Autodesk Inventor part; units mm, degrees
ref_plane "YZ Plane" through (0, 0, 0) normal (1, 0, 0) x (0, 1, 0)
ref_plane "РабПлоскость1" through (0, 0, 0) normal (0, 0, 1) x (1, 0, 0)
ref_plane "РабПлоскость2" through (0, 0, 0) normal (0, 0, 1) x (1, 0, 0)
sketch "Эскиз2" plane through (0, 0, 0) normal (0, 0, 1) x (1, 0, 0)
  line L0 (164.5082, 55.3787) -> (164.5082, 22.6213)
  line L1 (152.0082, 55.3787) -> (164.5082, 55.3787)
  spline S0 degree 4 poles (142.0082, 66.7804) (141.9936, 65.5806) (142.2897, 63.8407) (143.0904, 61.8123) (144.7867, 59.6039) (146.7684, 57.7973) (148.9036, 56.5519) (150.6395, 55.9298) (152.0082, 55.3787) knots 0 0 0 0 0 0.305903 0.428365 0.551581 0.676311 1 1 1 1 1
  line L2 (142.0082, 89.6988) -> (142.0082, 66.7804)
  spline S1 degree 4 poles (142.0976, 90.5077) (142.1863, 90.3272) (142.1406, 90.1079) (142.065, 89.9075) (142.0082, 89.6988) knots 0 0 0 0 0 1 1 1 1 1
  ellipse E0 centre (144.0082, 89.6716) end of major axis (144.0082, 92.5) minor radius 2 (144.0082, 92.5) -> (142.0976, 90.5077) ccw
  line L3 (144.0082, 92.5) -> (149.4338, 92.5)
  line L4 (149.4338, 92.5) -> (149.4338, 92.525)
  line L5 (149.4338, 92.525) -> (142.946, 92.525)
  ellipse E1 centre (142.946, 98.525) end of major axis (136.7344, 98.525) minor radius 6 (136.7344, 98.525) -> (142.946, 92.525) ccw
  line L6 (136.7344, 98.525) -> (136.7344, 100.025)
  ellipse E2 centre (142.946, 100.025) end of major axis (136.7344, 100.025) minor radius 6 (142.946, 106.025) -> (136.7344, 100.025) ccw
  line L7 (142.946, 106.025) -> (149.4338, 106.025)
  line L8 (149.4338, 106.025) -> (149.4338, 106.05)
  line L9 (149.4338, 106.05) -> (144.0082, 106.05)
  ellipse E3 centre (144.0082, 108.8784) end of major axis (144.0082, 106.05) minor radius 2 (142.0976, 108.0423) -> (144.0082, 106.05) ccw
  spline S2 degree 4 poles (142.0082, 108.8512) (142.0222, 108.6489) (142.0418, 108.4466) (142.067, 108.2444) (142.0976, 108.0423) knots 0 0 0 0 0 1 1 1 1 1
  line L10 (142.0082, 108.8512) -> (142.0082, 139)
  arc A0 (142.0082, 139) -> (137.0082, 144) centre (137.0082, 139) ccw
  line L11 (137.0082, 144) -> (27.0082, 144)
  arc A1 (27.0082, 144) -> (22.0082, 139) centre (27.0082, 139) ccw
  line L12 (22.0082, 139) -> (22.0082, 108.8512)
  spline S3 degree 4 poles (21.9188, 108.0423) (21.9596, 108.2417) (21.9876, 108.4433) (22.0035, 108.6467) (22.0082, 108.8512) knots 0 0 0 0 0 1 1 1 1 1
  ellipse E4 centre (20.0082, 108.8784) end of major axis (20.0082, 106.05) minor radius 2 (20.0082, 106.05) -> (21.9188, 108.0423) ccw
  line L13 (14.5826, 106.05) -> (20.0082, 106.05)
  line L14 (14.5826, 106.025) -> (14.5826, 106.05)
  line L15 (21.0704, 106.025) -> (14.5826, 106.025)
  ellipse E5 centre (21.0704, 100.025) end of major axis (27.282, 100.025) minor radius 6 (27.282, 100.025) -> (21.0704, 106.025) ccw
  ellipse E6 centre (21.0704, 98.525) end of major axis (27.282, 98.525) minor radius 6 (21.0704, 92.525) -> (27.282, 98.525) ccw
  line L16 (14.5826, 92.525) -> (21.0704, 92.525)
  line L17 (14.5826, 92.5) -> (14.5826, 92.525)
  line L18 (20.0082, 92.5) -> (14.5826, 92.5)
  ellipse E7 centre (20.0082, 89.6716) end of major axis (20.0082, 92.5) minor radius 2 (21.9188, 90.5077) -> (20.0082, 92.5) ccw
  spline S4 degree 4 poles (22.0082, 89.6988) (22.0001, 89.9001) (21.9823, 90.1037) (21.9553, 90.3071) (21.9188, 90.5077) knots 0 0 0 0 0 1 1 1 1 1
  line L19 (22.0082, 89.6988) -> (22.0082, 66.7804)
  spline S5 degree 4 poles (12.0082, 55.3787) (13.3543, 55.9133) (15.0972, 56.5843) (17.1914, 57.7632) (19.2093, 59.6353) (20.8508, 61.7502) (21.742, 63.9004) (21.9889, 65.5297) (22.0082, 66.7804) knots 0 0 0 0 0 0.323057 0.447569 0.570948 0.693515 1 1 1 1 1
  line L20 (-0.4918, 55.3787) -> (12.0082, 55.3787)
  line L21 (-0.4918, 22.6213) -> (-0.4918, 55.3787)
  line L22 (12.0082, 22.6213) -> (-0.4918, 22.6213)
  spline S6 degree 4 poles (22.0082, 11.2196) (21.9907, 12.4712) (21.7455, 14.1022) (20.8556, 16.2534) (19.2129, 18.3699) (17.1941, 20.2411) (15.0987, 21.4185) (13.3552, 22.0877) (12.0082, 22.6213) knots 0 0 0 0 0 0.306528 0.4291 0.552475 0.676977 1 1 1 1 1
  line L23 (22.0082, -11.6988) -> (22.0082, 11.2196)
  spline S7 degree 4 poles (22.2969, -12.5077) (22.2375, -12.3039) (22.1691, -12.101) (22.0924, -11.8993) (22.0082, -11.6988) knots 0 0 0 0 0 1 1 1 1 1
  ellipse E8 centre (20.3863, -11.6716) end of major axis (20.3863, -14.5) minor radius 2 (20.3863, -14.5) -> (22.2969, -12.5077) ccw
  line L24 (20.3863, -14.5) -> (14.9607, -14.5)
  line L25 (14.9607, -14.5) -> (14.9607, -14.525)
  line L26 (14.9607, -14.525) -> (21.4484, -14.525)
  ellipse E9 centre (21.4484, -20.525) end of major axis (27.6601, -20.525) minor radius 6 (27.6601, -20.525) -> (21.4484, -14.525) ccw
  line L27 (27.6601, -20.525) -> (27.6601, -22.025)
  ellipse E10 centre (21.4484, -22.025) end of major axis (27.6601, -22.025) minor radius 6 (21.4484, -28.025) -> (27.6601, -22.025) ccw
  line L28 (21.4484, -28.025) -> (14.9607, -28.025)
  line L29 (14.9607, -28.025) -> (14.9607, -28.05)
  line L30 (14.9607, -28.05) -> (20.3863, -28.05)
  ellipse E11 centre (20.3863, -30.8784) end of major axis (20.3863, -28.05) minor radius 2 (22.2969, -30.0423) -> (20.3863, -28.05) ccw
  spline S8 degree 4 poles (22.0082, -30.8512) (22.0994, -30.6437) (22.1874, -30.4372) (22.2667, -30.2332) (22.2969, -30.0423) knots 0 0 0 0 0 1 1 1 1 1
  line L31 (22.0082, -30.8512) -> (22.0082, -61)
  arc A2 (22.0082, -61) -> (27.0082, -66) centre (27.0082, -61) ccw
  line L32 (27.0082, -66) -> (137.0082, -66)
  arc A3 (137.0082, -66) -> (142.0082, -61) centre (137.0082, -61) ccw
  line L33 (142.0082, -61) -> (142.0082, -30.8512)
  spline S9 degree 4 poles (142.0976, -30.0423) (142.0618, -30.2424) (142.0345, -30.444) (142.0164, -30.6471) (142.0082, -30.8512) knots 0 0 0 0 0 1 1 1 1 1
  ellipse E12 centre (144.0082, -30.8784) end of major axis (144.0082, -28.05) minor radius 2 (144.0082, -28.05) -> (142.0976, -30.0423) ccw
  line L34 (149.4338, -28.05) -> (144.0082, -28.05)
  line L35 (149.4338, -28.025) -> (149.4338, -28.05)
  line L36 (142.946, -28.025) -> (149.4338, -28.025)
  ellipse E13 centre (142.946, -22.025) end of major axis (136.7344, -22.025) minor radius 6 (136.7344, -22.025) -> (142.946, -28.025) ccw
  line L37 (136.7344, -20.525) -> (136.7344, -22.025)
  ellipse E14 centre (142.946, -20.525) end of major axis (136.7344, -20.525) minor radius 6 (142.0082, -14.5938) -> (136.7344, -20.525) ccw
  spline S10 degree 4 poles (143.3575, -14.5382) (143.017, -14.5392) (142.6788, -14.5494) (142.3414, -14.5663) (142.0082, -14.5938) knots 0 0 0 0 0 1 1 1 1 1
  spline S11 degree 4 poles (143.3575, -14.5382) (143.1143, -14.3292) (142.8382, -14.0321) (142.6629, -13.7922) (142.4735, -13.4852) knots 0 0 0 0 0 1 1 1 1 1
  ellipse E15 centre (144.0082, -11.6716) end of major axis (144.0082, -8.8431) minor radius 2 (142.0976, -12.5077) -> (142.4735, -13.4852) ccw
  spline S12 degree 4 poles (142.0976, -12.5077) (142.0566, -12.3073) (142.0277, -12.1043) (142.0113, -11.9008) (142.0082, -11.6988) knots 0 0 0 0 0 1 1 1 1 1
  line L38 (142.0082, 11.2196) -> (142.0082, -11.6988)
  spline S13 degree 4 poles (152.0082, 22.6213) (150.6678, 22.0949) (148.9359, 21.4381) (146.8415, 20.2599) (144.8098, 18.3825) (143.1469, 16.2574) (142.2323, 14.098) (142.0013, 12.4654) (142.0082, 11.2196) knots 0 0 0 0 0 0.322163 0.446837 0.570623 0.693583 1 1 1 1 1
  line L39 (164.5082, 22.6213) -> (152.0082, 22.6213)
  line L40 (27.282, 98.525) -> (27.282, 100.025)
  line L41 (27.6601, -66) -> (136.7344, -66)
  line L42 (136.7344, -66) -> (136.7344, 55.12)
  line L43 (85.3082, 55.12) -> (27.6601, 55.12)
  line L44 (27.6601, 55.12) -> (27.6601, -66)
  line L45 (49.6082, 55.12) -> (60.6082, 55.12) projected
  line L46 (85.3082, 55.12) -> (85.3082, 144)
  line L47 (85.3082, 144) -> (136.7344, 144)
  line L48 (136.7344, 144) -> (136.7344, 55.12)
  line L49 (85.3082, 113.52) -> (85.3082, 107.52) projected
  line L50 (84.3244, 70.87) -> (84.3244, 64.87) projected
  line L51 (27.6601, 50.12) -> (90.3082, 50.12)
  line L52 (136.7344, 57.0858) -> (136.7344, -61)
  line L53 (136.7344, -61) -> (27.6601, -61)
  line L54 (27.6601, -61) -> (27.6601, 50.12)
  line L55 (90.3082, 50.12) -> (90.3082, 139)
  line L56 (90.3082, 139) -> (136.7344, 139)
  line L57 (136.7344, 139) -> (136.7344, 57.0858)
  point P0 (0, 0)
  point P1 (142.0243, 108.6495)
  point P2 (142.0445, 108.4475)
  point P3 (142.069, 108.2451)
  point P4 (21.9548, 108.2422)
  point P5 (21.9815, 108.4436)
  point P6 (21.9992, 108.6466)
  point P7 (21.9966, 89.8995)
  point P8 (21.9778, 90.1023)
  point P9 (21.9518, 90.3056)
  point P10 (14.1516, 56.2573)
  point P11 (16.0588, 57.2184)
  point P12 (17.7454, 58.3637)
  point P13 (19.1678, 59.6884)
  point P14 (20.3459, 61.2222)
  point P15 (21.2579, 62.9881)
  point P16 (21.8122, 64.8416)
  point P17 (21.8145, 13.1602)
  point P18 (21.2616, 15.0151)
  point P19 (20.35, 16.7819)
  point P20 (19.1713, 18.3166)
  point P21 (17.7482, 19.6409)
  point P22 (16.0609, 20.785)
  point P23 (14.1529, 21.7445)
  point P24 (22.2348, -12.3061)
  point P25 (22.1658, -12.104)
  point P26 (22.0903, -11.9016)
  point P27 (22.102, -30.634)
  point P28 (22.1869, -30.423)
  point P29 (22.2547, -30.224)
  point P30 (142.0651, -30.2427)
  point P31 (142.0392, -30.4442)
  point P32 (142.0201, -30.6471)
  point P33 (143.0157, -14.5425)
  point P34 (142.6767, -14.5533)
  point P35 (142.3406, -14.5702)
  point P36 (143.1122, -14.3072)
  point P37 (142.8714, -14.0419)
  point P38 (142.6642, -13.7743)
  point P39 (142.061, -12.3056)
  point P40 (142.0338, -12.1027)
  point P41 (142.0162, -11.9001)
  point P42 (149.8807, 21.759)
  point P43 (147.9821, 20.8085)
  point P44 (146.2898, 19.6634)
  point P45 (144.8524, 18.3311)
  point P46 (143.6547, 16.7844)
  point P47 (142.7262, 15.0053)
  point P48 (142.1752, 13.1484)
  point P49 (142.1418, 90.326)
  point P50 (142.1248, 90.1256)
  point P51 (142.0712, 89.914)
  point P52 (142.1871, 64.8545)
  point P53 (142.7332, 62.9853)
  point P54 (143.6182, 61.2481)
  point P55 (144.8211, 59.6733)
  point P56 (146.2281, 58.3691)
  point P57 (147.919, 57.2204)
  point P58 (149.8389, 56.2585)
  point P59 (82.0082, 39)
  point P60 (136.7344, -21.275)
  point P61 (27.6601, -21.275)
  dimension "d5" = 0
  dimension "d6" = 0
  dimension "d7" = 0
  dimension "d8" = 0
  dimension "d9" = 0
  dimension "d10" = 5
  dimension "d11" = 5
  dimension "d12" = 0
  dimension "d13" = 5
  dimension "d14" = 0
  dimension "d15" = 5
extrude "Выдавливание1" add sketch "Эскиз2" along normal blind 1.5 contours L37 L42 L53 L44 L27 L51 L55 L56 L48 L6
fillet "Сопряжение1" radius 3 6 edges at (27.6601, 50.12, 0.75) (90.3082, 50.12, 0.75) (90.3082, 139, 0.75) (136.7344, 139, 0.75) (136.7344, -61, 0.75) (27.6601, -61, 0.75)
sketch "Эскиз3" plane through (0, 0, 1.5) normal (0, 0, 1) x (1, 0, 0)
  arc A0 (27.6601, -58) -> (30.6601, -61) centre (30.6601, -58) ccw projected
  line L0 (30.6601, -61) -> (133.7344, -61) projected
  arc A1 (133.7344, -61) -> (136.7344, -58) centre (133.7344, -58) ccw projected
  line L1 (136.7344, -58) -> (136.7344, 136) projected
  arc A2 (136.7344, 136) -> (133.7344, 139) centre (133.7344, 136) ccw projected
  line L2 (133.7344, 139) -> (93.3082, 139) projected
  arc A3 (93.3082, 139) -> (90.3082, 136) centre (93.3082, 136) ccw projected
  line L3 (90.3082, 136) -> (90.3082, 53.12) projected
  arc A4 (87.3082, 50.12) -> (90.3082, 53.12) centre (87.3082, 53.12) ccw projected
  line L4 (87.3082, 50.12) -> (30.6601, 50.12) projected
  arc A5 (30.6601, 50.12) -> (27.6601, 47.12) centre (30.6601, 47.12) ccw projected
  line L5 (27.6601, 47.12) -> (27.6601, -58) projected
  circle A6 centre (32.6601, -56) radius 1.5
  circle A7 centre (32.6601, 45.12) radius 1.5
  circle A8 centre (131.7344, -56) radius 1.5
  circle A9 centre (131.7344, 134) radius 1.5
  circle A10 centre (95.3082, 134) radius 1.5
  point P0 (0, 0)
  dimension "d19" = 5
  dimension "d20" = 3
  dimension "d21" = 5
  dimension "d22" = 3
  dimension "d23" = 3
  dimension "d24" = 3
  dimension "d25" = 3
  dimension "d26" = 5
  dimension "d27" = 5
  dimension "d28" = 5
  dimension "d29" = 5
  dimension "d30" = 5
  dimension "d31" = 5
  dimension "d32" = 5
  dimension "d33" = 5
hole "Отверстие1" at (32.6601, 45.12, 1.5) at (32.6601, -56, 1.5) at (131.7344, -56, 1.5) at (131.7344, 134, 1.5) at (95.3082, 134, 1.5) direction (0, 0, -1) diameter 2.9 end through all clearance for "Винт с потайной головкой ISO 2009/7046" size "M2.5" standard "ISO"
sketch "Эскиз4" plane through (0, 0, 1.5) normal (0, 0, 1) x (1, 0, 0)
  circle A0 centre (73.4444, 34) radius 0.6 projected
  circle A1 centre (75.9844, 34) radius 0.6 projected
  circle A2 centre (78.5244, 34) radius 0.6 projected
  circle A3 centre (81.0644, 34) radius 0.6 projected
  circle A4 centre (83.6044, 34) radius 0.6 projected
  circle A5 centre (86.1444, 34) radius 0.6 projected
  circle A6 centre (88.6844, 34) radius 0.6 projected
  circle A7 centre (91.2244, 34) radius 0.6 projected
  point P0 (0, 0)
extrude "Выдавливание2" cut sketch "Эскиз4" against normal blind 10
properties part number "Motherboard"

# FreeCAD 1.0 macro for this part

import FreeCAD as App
import Part
import Sketcher


def edges_at(feature, points):
    """Names of the edges that pass closest to the given points."""
    edges = feature.Shape.Edges
    near = lambda p: min(range(len(edges)), key=lambda i: edges[i].distToShape(Part.Vertex(*p))[0])
    return sorted({f"Edge{near(p) + 1}" for p in points})

doc = App.newDocument("Part")
params = doc.addObject("Spreadsheet::Sheet", "Params")
for row, (alias, value) in enumerate([
    ("sketch1_height", "200 mm"),
    ("sketch1_height2", "88.88 mm"),
    ("pad1_length", "1.5 mm"),
    ("fillet_radius", "3 mm"),
    ("sketch2_diameter", "2.9 mm"),
    ("hole_diameter", "2.9 mm"),
    ("sketch3_diameter", "1.2 mm"),
    ("pocket1_length", "10 mm"),
], start=1):
    params.set(f"A{row}", alias)
    params.set(f"B{row}", "=" + value)
    params.setAlias(f"B{row}", alias)

body = doc.addObject("PartDesign::Body", "Body")

sketch1 = body.newObject("Sketcher::SketchObject", "Sketch")
sketch1.AttachmentSupport = (doc.getObject("XY_Plane"), [""])
sketch1.MapMode = "FlatFace"
sketch1.addGeometry([
    Part.LineSegment(App.Vector(137, -61, 0), App.Vector(137, 139, 0)),
    Part.LineSegment(App.Vector(137, 139, 0), App.Vector(90, 139, 0)),
    Part.LineSegment(App.Vector(90, 139, 0), App.Vector(90, 50, 0)),
    Part.LineSegment(App.Vector(90, 50, 0), App.Vector(28, 50, 0)),
    Part.LineSegment(App.Vector(28, 50, 0), App.Vector(28, -61, 0)),
    Part.LineSegment(App.Vector(28, -61, 0), App.Vector(137, -61, 0)),
], False)
sketch1.addConstraint([
    Sketcher.Constraint("Coincident", 0, 2, 1, 1),
    Sketcher.Constraint("Coincident", 1, 2, 2, 1),
    Sketcher.Constraint("Coincident", 2, 2, 3, 1),
    Sketcher.Constraint("Coincident", 3, 2, 4, 1),
    Sketcher.Constraint("Coincident", 4, 2, 5, 1),
    Sketcher.Constraint("Coincident", 5, 2, 0, 1),
    Sketcher.Constraint("Vertical", 0),
    Sketcher.Constraint("Horizontal", 1),
    Sketcher.Constraint("Vertical", 2),
    Sketcher.Constraint("Horizontal", 3),
    Sketcher.Constraint("Vertical", 4),
    Sketcher.Constraint("Horizontal", 5),
    Sketcher.Constraint("DistanceY", 0, 1, 0, 2, 200.0),
    Sketcher.Constraint("DistanceY", -1, 1, 0, 2, 139.0),
    Sketcher.Constraint("DistanceY", 2, 2, 2, 1, 88.88),
    Sketcher.Constraint("DistanceX", 3, 2, 3, 1, 62.648),
    Sketcher.Constraint("DistanceX", -1, 1, 3, 2, 27.66),
    Sketcher.Constraint("DistanceX", 1, 2, 1, 1, 46.4262),
])
sketch1.setExpression("Constraints[12]", "Params.sketch1_height")
sketch1.setExpression("Constraints[14]", "Params.sketch1_height2")
pad1 = body.newObject("PartDesign::Pad", "Pad")
pad1.Profile = sketch1
pad1.setExpression("Length", "Params.pad1_length")
doc.recompute()

fillet = body.newObject("PartDesign::Fillet", "Fillet")
fillet.Base = (pad1, edges_at(pad1, [
    (27.66, 50.12, 0.75),
    (90.308, 50.12, 0.75),
    (90.308, 139, 0.75),
    (136.734, 139, 0.75),
    (136.734, -61, 0.75),
    (27.66, -61, 0.75),
]))
fillet.setExpression("Radius", "Params.fillet_radius")

sketch2 = body.newObject("Sketcher::SketchObject", "Sketch001")
sketch2.AttachmentSupport = (doc.getObject("XY_Plane"), [""])
sketch2.MapMode = "FlatFace"
sketch2.AttachmentOffset = App.Placement(App.Vector(0, 0, 1.5), App.Rotation())
sketch2.addGeometry([
    Part.Circle(App.Vector(32.7, 45.1, 0), App.Vector(0, 0, 1), 1.4),
    Part.Circle(App.Vector(32.7, -56, 0), App.Vector(0, 0, 1), 1.4),
    Part.Circle(App.Vector(131.7, -56, 0), App.Vector(0, 0, 1), 1.4),
    Part.Circle(App.Vector(131.7, 134, 0), App.Vector(0, 0, 1), 1.4),
    Part.Circle(App.Vector(95.3, 134, 0), App.Vector(0, 0, 1), 1.4),
], False)
sketch2.addConstraint([
    Sketcher.Constraint("Equal", 0, 1),
    Sketcher.Constraint("Equal", 1, 2),
    Sketcher.Constraint("Equal", 2, 3),
    Sketcher.Constraint("Equal", 3, 4),
    Sketcher.Constraint("Horizontal", 1, 3, 2, 3),
    Sketcher.Constraint("Horizontal", 3, 3, 4, 3),
    Sketcher.Constraint("Vertical", 0, 3, 1, 3),
    Sketcher.Constraint("Vertical", 2, 3, 3, 3),
    Sketcher.Constraint("Diameter", 0, 2.9),
    Sketcher.Constraint("DistanceY", 1, 3, -1, 1, 56.0),
    Sketcher.Constraint("DistanceY", -1, 1, 3, 3, 134.0),
    Sketcher.Constraint("DistanceX", -1, 1, 0, 3, 32.66),
    Sketcher.Constraint("DistanceY", -1, 1, 0, 3, 45.12),
    Sketcher.Constraint("DistanceX", 0, 3, 4, 3, 62.648),
    Sketcher.Constraint("DistanceX", -1, 1, 2, 3, 131.7344),
])
sketch2.setExpression("Constraints[8]", "Params.sketch2_diameter")
doc.recompute()
hole = body.newObject("PartDesign::Hole", "Hole")
hole.Profile = sketch2
hole.ThreadType = "None"
hole.setExpression("Diameter", "Params.hole_diameter")
hole.DepthType = "ThroughAll"

sketch3 = body.newObject("Sketcher::SketchObject", "Sketch002")
sketch3.AttachmentSupport = (doc.getObject("XY_Plane"), [""])
sketch3.MapMode = "FlatFace"
sketch3.AttachmentOffset = App.Placement(App.Vector(0, 0, 1.5), App.Rotation())
sketch3.addGeometry([
    Part.Circle(App.Vector(73.4, 34, 0), App.Vector(0, 0, 1), 0.6),
    Part.Circle(App.Vector(76, 34, 0), App.Vector(0, 0, 1), 0.6),
    Part.Circle(App.Vector(78.5, 34, 0), App.Vector(0, 0, 1), 0.6),
    Part.Circle(App.Vector(81.1, 34, 0), App.Vector(0, 0, 1), 0.6),
    Part.Circle(App.Vector(83.6, 34, 0), App.Vector(0, 0, 1), 0.6),
    Part.Circle(App.Vector(86.1, 34, 0), App.Vector(0, 0, 1), 0.6),
    Part.Circle(App.Vector(88.7, 34, 0), App.Vector(0, 0, 1), 0.6),
    Part.Circle(App.Vector(91.2, 34, 0), App.Vector(0, 0, 1), 0.6),
], False)
sketch3.addConstraint([
    Sketcher.Constraint("Equal", 0, 1),
    Sketcher.Constraint("Equal", 1, 2),
    Sketcher.Constraint("Equal", 2, 3),
    Sketcher.Constraint("Equal", 3, 4),
    Sketcher.Constraint("Equal", 4, 5),
    Sketcher.Constraint("Equal", 5, 6),
    Sketcher.Constraint("Equal", 6, 7),
    Sketcher.Constraint("Horizontal", 0, 3, 1, 3),
    Sketcher.Constraint("Horizontal", 1, 3, 2, 3),
    Sketcher.Constraint("Horizontal", 2, 3, 3, 3),
    Sketcher.Constraint("Horizontal", 3, 3, 4, 3),
    Sketcher.Constraint("Horizontal", 4, 3, 5, 3),
    Sketcher.Constraint("Horizontal", 5, 3, 6, 3),
    Sketcher.Constraint("Horizontal", 6, 3, 7, 3),
    Sketcher.Constraint("Diameter", 0, 1.2),
    Sketcher.Constraint("DistanceY", -1, 1, 0, 3, 34.0),
    Sketcher.Constraint("DistanceX", 0, 3, 5, 3, 12.7),
    Sketcher.Constraint("DistanceX", 1, 3, 6, 3, 12.7),
    Sketcher.Constraint("DistanceX", 2, 3, 7, 3, 12.7),
    Sketcher.Constraint("DistanceX", 0, 3, 1, 3, 2.54),
    Sketcher.Constraint("DistanceX", 1, 3, 2, 3, 2.54),
    Sketcher.Constraint("DistanceX", 2, 3, 3, 3, 2.54),
    Sketcher.Constraint("DistanceX", 3, 3, 4, 3, 2.54),
    Sketcher.Constraint("DistanceX", -1, 1, 0, 3, 73.4444),
])
sketch3.setExpression("Constraints[14]", "Params.sketch3_diameter")
pocket1 = body.newObject("PartDesign::Pocket", "Pocket")
pocket1.Profile = sketch3
pocket1.setExpression("Length", "Params.pocket1_length")

doc.recompute()
